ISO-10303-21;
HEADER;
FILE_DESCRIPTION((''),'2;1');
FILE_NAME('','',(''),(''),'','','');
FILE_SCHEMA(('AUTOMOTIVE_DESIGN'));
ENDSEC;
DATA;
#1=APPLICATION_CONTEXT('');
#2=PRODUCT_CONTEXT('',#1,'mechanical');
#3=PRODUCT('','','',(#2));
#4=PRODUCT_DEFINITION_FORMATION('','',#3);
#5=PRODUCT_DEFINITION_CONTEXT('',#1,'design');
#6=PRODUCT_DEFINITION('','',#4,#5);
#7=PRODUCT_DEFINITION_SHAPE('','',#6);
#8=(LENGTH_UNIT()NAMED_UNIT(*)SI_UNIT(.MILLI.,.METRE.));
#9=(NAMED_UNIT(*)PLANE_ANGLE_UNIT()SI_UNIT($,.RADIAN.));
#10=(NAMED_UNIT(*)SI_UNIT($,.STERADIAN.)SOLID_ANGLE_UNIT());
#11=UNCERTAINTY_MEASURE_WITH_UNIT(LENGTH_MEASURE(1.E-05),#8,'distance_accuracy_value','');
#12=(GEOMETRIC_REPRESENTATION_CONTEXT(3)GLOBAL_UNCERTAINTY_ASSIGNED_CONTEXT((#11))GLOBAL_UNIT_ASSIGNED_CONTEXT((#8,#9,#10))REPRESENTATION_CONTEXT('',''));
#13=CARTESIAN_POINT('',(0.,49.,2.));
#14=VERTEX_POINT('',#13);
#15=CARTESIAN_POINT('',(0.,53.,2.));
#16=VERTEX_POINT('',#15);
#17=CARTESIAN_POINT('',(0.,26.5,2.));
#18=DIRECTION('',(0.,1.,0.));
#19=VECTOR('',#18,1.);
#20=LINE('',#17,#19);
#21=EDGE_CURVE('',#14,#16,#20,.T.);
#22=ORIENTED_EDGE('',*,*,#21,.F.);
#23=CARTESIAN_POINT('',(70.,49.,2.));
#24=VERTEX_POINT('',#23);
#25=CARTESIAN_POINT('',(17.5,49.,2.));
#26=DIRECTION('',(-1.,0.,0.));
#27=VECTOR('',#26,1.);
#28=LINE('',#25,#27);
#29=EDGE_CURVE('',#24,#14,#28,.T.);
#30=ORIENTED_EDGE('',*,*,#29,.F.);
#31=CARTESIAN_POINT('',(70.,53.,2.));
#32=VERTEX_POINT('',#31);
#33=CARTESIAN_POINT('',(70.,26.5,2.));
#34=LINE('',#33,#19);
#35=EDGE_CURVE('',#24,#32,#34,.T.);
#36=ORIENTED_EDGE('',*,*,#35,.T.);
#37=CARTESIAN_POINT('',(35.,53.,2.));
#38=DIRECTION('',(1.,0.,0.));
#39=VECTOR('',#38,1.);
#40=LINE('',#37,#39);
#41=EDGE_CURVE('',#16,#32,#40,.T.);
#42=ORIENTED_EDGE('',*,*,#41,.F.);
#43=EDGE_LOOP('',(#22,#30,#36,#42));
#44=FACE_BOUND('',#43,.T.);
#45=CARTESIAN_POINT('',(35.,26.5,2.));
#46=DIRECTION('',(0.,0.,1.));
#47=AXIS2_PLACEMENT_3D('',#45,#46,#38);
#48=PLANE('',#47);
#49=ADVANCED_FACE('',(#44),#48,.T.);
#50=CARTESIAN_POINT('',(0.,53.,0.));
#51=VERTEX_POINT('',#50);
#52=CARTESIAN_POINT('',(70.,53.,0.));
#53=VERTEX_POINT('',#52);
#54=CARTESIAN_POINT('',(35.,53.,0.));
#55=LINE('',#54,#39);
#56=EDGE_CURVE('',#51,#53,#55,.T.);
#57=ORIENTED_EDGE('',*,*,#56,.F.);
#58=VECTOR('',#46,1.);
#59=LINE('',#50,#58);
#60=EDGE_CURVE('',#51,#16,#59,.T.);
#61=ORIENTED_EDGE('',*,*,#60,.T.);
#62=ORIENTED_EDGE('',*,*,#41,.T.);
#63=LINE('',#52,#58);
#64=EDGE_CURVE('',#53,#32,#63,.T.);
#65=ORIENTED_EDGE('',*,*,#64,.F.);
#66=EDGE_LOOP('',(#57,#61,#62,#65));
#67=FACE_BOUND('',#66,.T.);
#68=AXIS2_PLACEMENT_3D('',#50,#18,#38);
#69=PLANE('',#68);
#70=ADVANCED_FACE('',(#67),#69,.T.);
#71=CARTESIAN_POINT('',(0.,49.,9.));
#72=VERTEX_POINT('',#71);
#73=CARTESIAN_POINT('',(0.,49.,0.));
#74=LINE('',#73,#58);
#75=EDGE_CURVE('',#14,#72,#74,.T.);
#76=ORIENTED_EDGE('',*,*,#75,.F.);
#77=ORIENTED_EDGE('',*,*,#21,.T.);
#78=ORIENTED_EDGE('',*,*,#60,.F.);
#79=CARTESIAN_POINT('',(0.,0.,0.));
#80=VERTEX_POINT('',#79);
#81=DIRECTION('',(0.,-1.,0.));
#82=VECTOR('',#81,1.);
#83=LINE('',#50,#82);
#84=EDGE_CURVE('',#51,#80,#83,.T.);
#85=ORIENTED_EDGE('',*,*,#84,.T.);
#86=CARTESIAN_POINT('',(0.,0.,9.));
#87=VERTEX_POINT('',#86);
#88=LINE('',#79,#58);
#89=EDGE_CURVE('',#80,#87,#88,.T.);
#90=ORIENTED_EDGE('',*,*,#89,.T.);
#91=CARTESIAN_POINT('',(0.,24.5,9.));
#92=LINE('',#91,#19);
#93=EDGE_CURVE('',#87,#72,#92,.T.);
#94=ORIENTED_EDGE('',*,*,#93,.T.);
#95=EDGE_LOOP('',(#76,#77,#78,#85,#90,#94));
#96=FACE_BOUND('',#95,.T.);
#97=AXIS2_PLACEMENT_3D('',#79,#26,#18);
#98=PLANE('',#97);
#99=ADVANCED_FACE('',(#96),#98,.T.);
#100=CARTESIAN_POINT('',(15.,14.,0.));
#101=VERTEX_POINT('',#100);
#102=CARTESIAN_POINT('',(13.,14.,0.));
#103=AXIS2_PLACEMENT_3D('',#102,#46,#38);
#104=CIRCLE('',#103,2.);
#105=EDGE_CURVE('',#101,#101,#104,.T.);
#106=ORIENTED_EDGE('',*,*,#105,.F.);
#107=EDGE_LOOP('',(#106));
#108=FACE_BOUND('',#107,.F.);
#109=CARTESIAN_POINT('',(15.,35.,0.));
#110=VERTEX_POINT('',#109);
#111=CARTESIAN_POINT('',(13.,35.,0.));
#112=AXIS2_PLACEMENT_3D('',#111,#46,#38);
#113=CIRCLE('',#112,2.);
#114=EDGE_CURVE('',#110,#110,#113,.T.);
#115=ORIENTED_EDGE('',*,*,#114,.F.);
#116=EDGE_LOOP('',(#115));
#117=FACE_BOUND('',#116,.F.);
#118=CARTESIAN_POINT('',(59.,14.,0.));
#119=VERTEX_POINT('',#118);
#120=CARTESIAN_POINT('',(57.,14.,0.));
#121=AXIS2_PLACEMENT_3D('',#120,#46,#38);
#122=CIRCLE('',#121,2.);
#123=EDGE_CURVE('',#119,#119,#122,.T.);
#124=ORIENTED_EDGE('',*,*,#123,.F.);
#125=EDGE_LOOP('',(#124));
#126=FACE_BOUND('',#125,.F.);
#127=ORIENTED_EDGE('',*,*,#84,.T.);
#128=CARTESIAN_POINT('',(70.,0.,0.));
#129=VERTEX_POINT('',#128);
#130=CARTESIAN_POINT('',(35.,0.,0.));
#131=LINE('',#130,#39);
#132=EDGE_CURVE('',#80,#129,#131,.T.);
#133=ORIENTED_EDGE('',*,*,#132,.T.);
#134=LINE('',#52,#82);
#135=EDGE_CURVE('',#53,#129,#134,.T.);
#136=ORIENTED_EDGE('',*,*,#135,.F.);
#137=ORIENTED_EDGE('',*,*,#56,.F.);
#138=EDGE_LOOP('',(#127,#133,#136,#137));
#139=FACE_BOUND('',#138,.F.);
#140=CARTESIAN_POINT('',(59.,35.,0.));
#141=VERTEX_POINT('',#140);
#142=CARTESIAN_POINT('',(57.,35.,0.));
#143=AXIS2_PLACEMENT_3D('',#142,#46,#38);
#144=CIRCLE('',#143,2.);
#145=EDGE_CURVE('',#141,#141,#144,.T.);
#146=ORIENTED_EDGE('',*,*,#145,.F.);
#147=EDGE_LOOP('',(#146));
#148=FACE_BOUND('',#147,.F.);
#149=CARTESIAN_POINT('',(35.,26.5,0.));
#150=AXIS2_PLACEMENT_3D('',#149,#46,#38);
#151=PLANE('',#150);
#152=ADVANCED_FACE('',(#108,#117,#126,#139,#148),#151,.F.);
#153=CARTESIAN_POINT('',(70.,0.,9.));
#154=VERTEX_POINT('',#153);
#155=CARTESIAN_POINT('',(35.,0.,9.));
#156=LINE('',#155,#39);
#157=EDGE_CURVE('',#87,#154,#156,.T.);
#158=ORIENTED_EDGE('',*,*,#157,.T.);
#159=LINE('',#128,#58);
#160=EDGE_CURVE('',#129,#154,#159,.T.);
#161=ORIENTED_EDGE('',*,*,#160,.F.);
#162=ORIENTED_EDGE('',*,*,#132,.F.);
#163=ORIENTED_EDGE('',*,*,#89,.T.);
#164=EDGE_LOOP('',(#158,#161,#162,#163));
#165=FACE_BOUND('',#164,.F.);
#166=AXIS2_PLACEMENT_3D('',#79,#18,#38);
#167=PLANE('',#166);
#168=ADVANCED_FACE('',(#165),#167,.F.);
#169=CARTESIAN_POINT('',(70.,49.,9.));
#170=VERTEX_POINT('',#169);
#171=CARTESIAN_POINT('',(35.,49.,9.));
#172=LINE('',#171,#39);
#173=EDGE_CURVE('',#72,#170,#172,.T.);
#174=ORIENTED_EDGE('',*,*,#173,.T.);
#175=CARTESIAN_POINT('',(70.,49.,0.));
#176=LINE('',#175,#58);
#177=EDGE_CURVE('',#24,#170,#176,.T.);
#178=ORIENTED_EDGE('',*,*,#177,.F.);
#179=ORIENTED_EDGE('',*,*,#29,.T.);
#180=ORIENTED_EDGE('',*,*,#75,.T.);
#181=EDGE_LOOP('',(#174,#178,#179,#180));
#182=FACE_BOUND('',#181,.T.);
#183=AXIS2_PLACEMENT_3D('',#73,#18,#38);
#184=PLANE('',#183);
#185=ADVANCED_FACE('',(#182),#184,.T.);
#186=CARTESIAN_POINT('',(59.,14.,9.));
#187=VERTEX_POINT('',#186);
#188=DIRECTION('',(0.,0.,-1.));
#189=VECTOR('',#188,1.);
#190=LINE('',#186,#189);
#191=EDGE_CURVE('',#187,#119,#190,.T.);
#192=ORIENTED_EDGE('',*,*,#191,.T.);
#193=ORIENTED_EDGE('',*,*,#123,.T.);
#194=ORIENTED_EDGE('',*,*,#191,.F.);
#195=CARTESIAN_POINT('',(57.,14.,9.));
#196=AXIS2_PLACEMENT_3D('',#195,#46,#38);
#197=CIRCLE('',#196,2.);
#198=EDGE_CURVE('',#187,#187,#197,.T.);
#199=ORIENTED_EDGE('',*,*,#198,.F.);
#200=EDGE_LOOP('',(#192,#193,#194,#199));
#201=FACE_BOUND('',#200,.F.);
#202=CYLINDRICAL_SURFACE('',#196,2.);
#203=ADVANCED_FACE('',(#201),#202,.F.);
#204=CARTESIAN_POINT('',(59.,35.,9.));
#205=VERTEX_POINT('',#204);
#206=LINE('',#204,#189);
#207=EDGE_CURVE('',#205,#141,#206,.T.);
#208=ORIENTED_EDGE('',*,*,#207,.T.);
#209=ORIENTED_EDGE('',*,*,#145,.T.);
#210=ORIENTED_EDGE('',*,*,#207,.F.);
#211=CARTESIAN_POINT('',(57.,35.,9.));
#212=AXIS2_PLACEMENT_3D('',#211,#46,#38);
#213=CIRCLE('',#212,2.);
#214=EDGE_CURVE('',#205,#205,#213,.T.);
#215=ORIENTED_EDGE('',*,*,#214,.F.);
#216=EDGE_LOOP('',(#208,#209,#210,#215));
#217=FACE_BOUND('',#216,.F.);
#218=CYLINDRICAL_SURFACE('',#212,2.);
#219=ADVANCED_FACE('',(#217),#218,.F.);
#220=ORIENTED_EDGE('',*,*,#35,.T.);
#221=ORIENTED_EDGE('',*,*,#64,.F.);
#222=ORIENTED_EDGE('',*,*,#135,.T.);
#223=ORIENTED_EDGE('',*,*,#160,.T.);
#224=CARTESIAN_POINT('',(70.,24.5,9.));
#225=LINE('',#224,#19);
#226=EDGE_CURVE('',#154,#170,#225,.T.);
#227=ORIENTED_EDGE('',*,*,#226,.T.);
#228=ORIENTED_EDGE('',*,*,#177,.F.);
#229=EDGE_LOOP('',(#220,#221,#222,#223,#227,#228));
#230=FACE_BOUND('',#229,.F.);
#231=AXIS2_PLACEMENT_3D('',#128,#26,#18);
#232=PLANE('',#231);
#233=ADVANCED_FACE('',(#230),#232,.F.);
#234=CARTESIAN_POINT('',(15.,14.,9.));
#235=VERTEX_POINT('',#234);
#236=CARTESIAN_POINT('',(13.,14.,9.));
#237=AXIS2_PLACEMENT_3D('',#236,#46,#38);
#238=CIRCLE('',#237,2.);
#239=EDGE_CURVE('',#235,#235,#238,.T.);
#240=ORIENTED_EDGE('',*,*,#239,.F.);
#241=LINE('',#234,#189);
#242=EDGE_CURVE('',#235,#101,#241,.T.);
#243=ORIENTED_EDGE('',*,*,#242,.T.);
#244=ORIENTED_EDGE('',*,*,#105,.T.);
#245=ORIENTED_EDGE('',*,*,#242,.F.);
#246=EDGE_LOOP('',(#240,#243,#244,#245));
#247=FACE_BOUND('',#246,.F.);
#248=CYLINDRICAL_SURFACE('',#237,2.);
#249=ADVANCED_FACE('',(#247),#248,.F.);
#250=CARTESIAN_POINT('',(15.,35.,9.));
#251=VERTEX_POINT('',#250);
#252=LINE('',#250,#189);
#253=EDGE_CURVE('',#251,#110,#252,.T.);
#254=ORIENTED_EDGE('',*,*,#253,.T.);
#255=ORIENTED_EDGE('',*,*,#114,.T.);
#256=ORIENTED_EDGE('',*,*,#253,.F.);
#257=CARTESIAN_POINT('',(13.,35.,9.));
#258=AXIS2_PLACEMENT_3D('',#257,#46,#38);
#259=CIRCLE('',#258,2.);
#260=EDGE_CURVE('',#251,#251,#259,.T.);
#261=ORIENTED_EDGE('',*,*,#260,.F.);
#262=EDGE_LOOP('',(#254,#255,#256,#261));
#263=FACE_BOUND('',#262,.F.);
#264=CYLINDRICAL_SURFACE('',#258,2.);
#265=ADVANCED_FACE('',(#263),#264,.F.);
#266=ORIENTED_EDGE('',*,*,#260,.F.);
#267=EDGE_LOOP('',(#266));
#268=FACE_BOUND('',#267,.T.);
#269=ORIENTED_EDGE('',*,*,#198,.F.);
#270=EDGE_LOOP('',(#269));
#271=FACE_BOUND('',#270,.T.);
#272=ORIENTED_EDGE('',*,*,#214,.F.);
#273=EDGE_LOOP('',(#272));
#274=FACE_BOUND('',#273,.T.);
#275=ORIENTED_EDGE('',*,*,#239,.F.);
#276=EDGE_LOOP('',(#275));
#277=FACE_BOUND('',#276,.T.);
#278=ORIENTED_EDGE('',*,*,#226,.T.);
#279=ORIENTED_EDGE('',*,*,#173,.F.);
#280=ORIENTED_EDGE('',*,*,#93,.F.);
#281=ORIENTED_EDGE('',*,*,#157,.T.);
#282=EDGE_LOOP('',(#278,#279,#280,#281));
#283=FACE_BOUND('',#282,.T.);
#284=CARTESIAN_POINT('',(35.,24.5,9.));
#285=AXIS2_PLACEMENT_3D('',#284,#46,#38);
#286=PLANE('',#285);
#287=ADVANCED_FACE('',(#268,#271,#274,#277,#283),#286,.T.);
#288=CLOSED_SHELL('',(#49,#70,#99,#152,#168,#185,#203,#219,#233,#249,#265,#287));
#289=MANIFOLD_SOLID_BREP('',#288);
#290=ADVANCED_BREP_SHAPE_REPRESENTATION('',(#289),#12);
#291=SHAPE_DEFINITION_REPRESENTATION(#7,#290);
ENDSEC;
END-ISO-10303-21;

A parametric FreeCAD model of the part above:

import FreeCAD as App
import Part
import Sketcher

V = App.Vector

doc = App.newDocument("Part")
body = doc.addObject("PartDesign::Body", "Body")

# Sketch on XY plane
sketch1 = body.newObject("Sketcher::SketchObject", "Sketch")
sketch1.AttachmentSupport = (doc.getObject("XY_Plane"), [""])
sketch1.MapMode = "FlatFace"
sketch1.addGeometry([
    Part.LineSegment(V(0, 49, 0), V(0, 0, 0)),
    Part.LineSegment(V(0, 0, 0), V(70, 0, 0)),
    Part.LineSegment(V(70, 0, 0), V(70, 49, 0)),
    Part.LineSegment(V(70, 49, 0), V(0, 49, 0)),
], False)
sketch1.addConstraint([
    Sketcher.Constraint("Coincident", 0, 2, 1, 1),
    Sketcher.Constraint("Coincident", 1, 2, 2, 1),
    Sketcher.Constraint("Coincident", 2, 2, 3, 1),
    Sketcher.Constraint("Coincident", 3, 2, 0, 1),
    Sketcher.Constraint("Vertical", 0),
    Sketcher.Constraint("Horizontal", 1),
    Sketcher.Constraint("Vertical", 2),
    Sketcher.Constraint("Horizontal", 3),
    Sketcher.Constraint("Coincident", 0, 2, -1, 1),
    Sketcher.Constraint("DistanceX", 1, 1, 1, 2, 70.0),
    Sketcher.Constraint("DistanceY", 0, 2, 0, 1, 49.0),
])
pad1 = body.newObject("PartDesign::Pad", "Pad")
pad1.Profile = sketch1
pad1.Length = 9
body2 = doc.addObject("PartDesign::Body", "Body001")

# Sketch on XY plane
sketch2 = body2.newObject("Sketcher::SketchObject", "Sketch001")
sketch2.AttachmentSupport = (doc.getObject("XY_Plane001"), [""])
sketch2.MapMode = "FlatFace"
sketch2.addGeometry([
    Part.LineSegment(V(0, 53, 0), V(0, 0, 0)),
    Part.LineSegment(V(0, 0, 0), V(70, 0, 0)),
    Part.LineSegment(V(70, 0, 0), V(70, 53, 0)),
    Part.LineSegment(V(70, 53, 0), V(0, 53, 0)),
], False)
sketch2.addConstraint([
    Sketcher.Constraint("Coincident", 0, 2, 1, 1),
    Sketcher.Constraint("Coincident", 1, 2, 2, 1),
    Sketcher.Constraint("Coincident", 2, 2, 3, 1),
    Sketcher.Constraint("Coincident", 3, 2, 0, 1),
    Sketcher.Constraint("Vertical", 0),
    Sketcher.Constraint("Horizontal", 1),
    Sketcher.Constraint("Vertical", 2),
    Sketcher.Constraint("Horizontal", 3),
    Sketcher.Constraint("Coincident", 0, 2, -1, 1),
    Sketcher.Constraint("DistanceX", 1, 1, 1, 2, 70.0),
    Sketcher.Constraint("DistanceY", 0, 2, 0, 1, 53.0),
])
pad2 = body2.newObject("PartDesign::Pad", "Pad001")
pad2.Profile = sketch2
pad2.Length = 2
doc.recompute()

boolean = body2.newObject("PartDesign::Boolean", "Boolean")
boolean.Type = "Fuse"
boolean.addObjects([body])

# Sketch on XY plane
sketch3 = body2.newObject("Sketcher::SketchObject", "Sketch002")
sketch3.AttachmentSupport = (doc.getObject("XY_Plane001"), [""])
sketch3.MapMode = "FlatFace"
sketch3.AttachmentOffset = App.Placement(V(0, 0, 9), App.Rotation())
sketch3.addGeometry([
    Part.Circle(V(13, 14, 0), V(0, 0, 1), 2),
    Part.Circle(V(13, 35, 0), V(0, 0, 1), 2),
    Part.Circle(V(57, 35, 0), V(0, 0, 1), 2),
    Part.Circle(V(57, 14, 0), V(0, 0, 1), 2),
], False)
sketch3.addConstraint([
    Sketcher.Constraint("Equal", 0, 1),
    Sketcher.Constraint("Equal", 1, 2),
    Sketcher.Constraint("Equal", 2, 3),
    Sketcher.Constraint("Horizontal", 1, 3, 2, 3),
    Sketcher.Constraint("Horizontal", 0, 3, 3, 3),
    Sketcher.Constraint("Vertical", 0, 3, 1, 3),
    Sketcher.Constraint("Vertical", 2, 3, 3, 3),
    Sketcher.Constraint("Diameter", 0, 4.0),
    Sketcher.Constraint("DistanceX", -1, 1, 0, 3, 13.0),
    Sketcher.Constraint("DistanceY", -1, 1, 0, 3, 14.0),
    Sketcher.Constraint("DistanceY", -1, 1, 1, 3, 35.0),
    Sketcher.Constraint("DistanceX", -1, 1, 2, 3, 57.0),
])
pocket1 = body2.newObject("PartDesign::Pocket", "Pocket")
pocket1.Profile = sketch3
pocket1.Type = "ThroughAll"

doc.recompute()
